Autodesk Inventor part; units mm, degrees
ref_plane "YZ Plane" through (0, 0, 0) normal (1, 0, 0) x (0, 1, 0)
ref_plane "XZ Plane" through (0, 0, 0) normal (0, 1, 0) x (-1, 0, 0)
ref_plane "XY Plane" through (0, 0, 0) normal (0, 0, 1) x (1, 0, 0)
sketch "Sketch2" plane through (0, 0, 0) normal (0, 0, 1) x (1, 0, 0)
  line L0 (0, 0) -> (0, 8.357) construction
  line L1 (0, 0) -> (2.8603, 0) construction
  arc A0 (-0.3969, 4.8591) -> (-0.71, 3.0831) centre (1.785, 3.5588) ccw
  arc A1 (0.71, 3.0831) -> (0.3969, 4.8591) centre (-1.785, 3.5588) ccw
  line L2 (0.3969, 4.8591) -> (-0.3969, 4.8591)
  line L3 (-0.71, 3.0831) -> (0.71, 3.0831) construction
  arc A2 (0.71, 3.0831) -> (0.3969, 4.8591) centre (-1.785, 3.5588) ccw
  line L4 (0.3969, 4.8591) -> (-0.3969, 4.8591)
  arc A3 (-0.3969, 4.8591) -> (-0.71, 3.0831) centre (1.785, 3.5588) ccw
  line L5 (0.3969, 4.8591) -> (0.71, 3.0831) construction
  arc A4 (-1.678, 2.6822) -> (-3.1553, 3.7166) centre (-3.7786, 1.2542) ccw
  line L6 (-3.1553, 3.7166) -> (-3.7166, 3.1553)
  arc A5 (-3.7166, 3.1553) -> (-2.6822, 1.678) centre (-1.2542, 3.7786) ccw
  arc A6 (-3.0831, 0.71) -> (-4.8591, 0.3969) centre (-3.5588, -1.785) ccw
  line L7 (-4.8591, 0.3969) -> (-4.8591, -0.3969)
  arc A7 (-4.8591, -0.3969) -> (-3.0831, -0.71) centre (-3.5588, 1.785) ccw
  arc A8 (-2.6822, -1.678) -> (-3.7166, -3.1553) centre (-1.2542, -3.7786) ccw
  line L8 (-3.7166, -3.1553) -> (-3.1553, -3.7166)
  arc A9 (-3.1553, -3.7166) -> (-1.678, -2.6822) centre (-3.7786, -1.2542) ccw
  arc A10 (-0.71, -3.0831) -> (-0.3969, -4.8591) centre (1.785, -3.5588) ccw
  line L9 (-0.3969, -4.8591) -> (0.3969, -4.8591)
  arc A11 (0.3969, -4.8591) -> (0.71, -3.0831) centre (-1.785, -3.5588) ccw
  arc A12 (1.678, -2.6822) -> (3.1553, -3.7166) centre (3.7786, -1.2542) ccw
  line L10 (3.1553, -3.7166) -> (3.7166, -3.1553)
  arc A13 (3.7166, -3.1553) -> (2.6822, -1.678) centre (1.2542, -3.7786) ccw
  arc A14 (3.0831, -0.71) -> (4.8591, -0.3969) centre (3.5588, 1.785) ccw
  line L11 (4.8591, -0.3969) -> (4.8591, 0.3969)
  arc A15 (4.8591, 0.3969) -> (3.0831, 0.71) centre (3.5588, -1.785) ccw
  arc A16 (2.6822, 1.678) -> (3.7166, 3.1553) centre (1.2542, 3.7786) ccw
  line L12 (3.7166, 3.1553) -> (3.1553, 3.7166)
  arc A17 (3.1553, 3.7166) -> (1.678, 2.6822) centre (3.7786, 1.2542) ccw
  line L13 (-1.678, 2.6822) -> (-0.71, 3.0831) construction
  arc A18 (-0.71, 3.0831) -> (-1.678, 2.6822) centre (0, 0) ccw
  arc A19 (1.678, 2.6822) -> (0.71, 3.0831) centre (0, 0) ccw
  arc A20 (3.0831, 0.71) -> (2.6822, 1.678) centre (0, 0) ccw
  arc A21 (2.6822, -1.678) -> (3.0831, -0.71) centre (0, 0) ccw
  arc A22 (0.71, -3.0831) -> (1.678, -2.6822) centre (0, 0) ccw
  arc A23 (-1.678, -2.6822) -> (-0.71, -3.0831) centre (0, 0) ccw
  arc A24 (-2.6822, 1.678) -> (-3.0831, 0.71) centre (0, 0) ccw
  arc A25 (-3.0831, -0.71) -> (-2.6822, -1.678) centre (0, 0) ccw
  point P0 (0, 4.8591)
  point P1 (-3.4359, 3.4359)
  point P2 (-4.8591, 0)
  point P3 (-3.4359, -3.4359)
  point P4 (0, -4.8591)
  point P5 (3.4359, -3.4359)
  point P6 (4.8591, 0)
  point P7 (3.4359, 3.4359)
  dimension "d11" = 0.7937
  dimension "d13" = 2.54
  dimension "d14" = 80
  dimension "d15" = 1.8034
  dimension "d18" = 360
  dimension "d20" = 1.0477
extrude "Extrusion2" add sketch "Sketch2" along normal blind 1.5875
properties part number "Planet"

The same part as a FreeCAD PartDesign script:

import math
import FreeCAD as App
import Part
import Sketcher

V = App.Vector
Q = App.Units.Quantity

doc = App.newDocument("Part")
body = doc.addObject("PartDesign::Body", "Body")

sketch1 = body.newObject("Sketcher::SketchObject", "Sketch")
sketch1.AttachmentSupport = (doc.getObject("XY_Plane"), [""])
sketch1.MapMode = "FlatFace"
sketch1.addGeometry([
    Part.LineSegment(V(0.3969, 4.8591, 0), V(-0.3969, 4.8591, 0)),
    Part.ArcOfCircle(Part.Circle(V(1.785, 3.5588, 0), V(0, 0, 1), 2.539974), math.radians(149.207236), math.radians(190.794533)),
    Part.ArcOfCircle(Part.Circle(V(0.000482, -0.001507, 0), V(0, 0, 1), 3.165372), math.radians(102.970798), math.radians(122.023268)),
    Part.ArcOfCircle(Part.Circle(V(-3.7786, 1.2542, 0), V(0, 0, 1), 2.540021), math.radians(34.208092), math.radians(75.795255)),
    Part.LineSegment(V(-3.1553, 3.7166, 0), V(-3.7166, 3.1553, 0)),
    Part.ArcOfCircle(Part.Circle(V(-1.2542, 3.7786, 0), V(0, 0, 1), 2.540062), math.radians(-165.795255), math.radians(-124.208092)),
    Part.ArcOfCircle(Part.Circle(V(-0.001405, 0.000724, 0), V(0, 0, 1), 3.162265), math.radians(147.967283), math.radians(167.038651)),
    Part.ArcOfCircle(Part.Circle(V(-3.5588, -1.785, 0), V(0, 0, 1), 2.539944), math.radians(79.205467), math.radians(120.792764)),
    Part.LineSegment(V(-4.8591, 0.3969, 0), V(-4.8591, -0.3969, 0)),
    Part.ArcOfCircle(Part.Circle(V(-3.5588, 1.785, 0), V(0, 0, 1), 2.539974), math.radians(-120.792764), math.radians(-79.205467)),
    Part.ArcOfCircle(Part.Circle(V(0.001507, 0.000482, 0), V(0, 0, 1), 3.165372), math.radians(-167.029202), math.radians(-147.976732)),
    Part.ArcOfCircle(Part.Circle(V(-1.2542, -3.7786, 0), V(0, 0, 1), 2.540021), math.radians(124.208092), math.radians(165.795255)),
    Part.LineSegment(V(-3.7166, -3.1553, 0), V(-3.1553, -3.7166, 0)),
    Part.ArcOfCircle(Part.Circle(V(-3.7786, -1.2542, 0), V(0, 0, 1), 2.540062), math.radians(-75.795255), math.radians(-34.208092)),
    Part.ArcOfCircle(Part.Circle(V(-0.000724, -0.001405, 0), V(0, 0, 1), 3.162265), math.radians(-122.032717), math.radians(-102.961349)),
    Part.ArcOfCircle(Part.Circle(V(1.785, -3.5588, 0), V(0, 0, 1), 2.539944), math.radians(169.205467), math.radians(210.792764)),
    Part.LineSegment(V(-0.3969, -4.8591, 0), V(0.3969, -4.8591, 0)),
    Part.ArcOfCircle(Part.Circle(V(-1.785, -3.5588, 0), V(0, 0, 1), 2.539974), math.radians(-30.792764), math.radians(10.794533)),
    Part.ArcOfCircle(Part.Circle(V(-0.000482, 0.001507, 0), V(0, 0, 1), 3.165372), math.radians(-77.029202), math.radians(-57.976732)),
    Part.ArcOfCircle(Part.Circle(V(3.7786, -1.2542, 0), V(0, 0, 1), 2.540021), math.radians(-145.791908), math.radians(-104.204745)),
    Part.LineSegment(V(3.1553, -3.7166, 0), V(3.7166, -3.1553, 0)),
    Part.ArcOfCircle(Part.Circle(V(1.2542, -3.7786, 0), V(0, 0, 1), 2.540062), math.radians(14.204745), math.radians(55.791908)),
    Part.ArcOfCircle(Part.Circle(V(0.001405, -0.000724, 0), V(0, 0, 1), 3.162265), math.radians(-32.032717), math.radians(-12.961349)),
    Part.ArcOfCircle(Part.Circle(V(3.5588, 1.785, 0), V(0, 0, 1), 2.539944), math.radians(-100.794533), math.radians(-59.207236)),
    Part.LineSegment(V(4.8591, -0.3969, 0), V(4.8591, 0.3969, 0)),
    Part.ArcOfCircle(Part.Circle(V(3.5588, -1.785, 0), V(0, 0, 1), 2.539974), math.radians(59.207236), math.radians(100.794533)),
    Part.ArcOfCircle(Part.Circle(V(-0.001507, -0.000482, 0), V(0, 0, 1), 3.165372), math.radians(12.970798), math.radians(32.023268)),
    Part.ArcOfCircle(Part.Circle(V(1.2542, 3.7786, 0), V(0, 0, 1), 2.540021), math.radians(-55.791908), math.radians(-14.204745)),
    Part.LineSegment(V(3.7166, 3.1553, 0), V(3.1553, 3.7166, 0)),
    Part.ArcOfCircle(Part.Circle(V(3.7786, 1.2542, 0), V(0, 0, 1), 2.540062), math.radians(104.204745), math.radians(145.791908)),
    Part.ArcOfCircle(Part.Circle(V(0.000724, 0.001405, 0), V(0, 0, 1), 3.162265), math.radians(57.967283), math.radians(77.038651)),
    Part.ArcOfCircle(Part.Circle(V(-1.785, 3.5588, 0), V(0, 0, 1), 2.539944), math.radians(-10.794533), math.radians(30.792764)),
], False)
sketch1.addConstraint([
    Sketcher.Constraint("Coincident", 0, 2, 1, 1),
    Sketcher.Constraint("Coincident", 1, 2, 2, 1),
    Sketcher.Constraint("Coincident", 2, 2, 3, 1),
    Sketcher.Constraint("Coincident", 3, 2, 4, 1),
    Sketcher.Constraint("Coincident", 4, 2, 5, 1),
    Sketcher.Constraint("Coincident", 5, 2, 6, 1),
    Sketcher.Constraint("Coincident", 6, 2, 7, 1),
    Sketcher.Constraint("Coincident", 7, 2, 8, 1),
    Sketcher.Constraint("Coincident", 8, 2, 9, 1),
    Sketcher.Constraint("Coincident", 9, 2, 10, 1),
    Sketcher.Constraint("Coincident", 10, 2, 11, 1),
    Sketcher.Constraint("Coincident", 11, 2, 12, 1),
    Sketcher.Constraint("Coincident", 12, 2, 13, 1),
    Sketcher.Constraint("Coincident", 13, 2, 14, 1),
    Sketcher.Constraint("Coincident", 14, 2, 15, 1),
    Sketcher.Constraint("Coincident", 15, 2, 16, 1),
    Sketcher.Constraint("Coincident", 16, 2, 17, 1),
    Sketcher.Constraint("Coincident", 17, 2, 18, 1),
    Sketcher.Constraint("Coincident", 18, 2, 19, 1),
    Sketcher.Constraint("Coincident", 19, 2, 20, 1),
    Sketcher.Constraint("Coincident", 20, 2, 21, 1),
    Sketcher.Constraint("Coincident", 21, 2, 22, 1),
    Sketcher.Constraint("Coincident", 22, 2, 23, 1),
    Sketcher.Constraint("Coincident", 23, 2, 24, 1),
    Sketcher.Constraint("Coincident", 24, 2, 25, 1),
    Sketcher.Constraint("Coincident", 25, 2, 26, 1),
    Sketcher.Constraint("Coincident", 26, 2, 27, 1),
    Sketcher.Constraint("Coincident", 27, 2, 28, 1),
    Sketcher.Constraint("Coincident", 28, 2, 29, 1),
    Sketcher.Constraint("Coincident", 29, 2, 30, 1),
    Sketcher.Constraint("Coincident", 30, 2, 31, 1),
    Sketcher.Constraint("Coincident", 31, 2, 0, 1),
    Sketcher.Constraint("Horizontal", 0),
    Sketcher.Constraint("Vertical", 8),
    Sketcher.Constraint("Horizontal", 16),
    Sketcher.Constraint("Vertical", 24),
    Sketcher.Constraint("Equal", 1, 3),
    Sketcher.Constraint("Equal", 3, 5),
    Sketcher.Constraint("Equal", 5, 7),
    Sketcher.Constraint("Equal", 7, 9),
    Sketcher.Constraint("Equal", 2, 10),
    Sketcher.Constraint("Equal", 9, 11),
    Sketcher.Constraint("Equal", 11, 13),
    Sketcher.Constraint("Equal", 6, 14),
    Sketcher.Constraint("Equal", 13, 15),
    Sketcher.Constraint("Equal", 15, 17),
    Sketcher.Constraint("Equal", 10, 18),
    Sketcher.Constraint("Equal", 17, 19),
    Sketcher.Constraint("Equal", 19, 21),
    Sketcher.Constraint("Equal", 14, 22),
    Sketcher.Constraint("Equal", 21, 23),
    Sketcher.Constraint("Equal", 23, 25),
    Sketcher.Constraint("Equal", 18, 26),
    Sketcher.Constraint("Equal", 25, 27),
    Sketcher.Constraint("Equal", 27, 29),
    Sketcher.Constraint("Equal", 22, 30),
    Sketcher.Constraint("Equal", 29, 31),
    Sketcher.Constraint("Symmetric", 1, 3, 17, 3, -1, 1),
    Sketcher.Constraint("Symmetric", 2, 3, 18, 3, -1, 1),
    Sketcher.Constraint("Symmetric", 3, 3, 19, 3, -1, 1),
    Sketcher.Constraint("Symmetric", 5, 3, 21, 3, -1, 1),
    Sketcher.Constraint("Symmetric", 6, 3, 22, 3, -1, 1),
    Sketcher.Constraint("Symmetric", 7, 3, 23, 3, -1, 1),
    Sketcher.Constraint("Symmetric", 9, 3, 25, 3, -1, 1),
    Sketcher.Constraint("Symmetric", 10, 3, 26, 3, -1, 1),
    Sketcher.Constraint("Symmetric", 11, 3, 27, 3, -1, 1),
    Sketcher.Constraint("Symmetric", 13, 3, 29, 3, -1, 1),
    Sketcher.Constraint("Symmetric", 14, 3, 30, 3, -1, 1),
    Sketcher.Constraint("Symmetric", 15, 3, 31, 3, -1, 1),
    Sketcher.Constraint("Symmetric", 6, 3, 10, 3, -2),
    Sketcher.Constraint("Symmetric", 2, 3, 14, 3, -2),
    Sketcher.Constraint("Symmetric", 15, 3, 17, 3, -2),
    Sketcher.Constraint("Symmetric", 13, 3, 19, 3, -2),
    Sketcher.Constraint("Symmetric", 11, 3, 21, 3, -2),
    Sketcher.Constraint("Symmetric", 9, 3, 23, 3, -2),
    Sketcher.Constraint("Perpendicular", 4, 12),
    Sketcher.Constraint("Perpendicular", 12, 20),
    Sketcher.Constraint("Perpendicular", 20, 28),
    Sketcher.Constraint("Horizontal", 14, 2, 17, 2),
    Sketcher.Constraint("Horizontal", 13, 2, 18, 2),
    Sketcher.Constraint("Horizontal", 12, 2, 19, 2),
    Sketcher.Constraint("Horizontal", 11, 2, 20, 2),
    Sketcher.Constraint("Horizontal", 10, 2, 21, 2),
    Sketcher.Constraint("Horizontal", 9, 2, 22, 2),
    Sketcher.Constraint("Horizontal", 8, 2, 23, 2),
    Sketcher.Constraint("Horizontal", 4, 2, 27, 2),
    Sketcher.Constraint("Vertical", 4, 2, 11, 2),
    Sketcher.Constraint("Vertical", 0, 2, 15, 2),
    Sketcher.Constraint("Equal", 16, 8),
    Sketcher.Constraint("Radius", 1, Q("0.1 in")),
    Sketcher.Constraint("DistanceX", 0, 2, 0, 1, Q("0.031252 in")),
    Sketcher.Constraint("Distance", 4, Q("0.031252 in")),
    Sketcher.Constraint("Radius", 6, Q("0.1245 in")),
    Sketcher.Constraint("Radius", 2, 3.1654),
    Sketcher.Constraint("DistanceX", 0, 2, 27, 3, Q("0.065 in")),
    Sketcher.Constraint("DistanceY", 13, 3, 7, 2, Q("0.065 in")),
    Sketcher.Constraint("DistanceY", -1, 1, 1, 3, Q("0.1401 in")),
    Sketcher.Constraint("DistanceX", 7, 3, -1, 1, Q("0.1401 in")),
    Sketcher.Constraint("DistanceY", -1, 1, 0, 2, Q("0.1913 in")),
    Sketcher.Constraint("DistanceY", -1, 1, 2, 2, Q("0.1056 in")),
    Sketcher.Constraint("DistanceX", 5, 2, -1, 1, Q("0.1056 in")),
    Sketcher.Constraint("DistanceX", 7, 2, -1, 1, Q("0.1913 in")),
])
pad1 = body.newObject("PartDesign::Pad", "Pad")
pad1.Profile = sketch1
pad1.Length = Q("0.0625 in")

doc.recompute()
